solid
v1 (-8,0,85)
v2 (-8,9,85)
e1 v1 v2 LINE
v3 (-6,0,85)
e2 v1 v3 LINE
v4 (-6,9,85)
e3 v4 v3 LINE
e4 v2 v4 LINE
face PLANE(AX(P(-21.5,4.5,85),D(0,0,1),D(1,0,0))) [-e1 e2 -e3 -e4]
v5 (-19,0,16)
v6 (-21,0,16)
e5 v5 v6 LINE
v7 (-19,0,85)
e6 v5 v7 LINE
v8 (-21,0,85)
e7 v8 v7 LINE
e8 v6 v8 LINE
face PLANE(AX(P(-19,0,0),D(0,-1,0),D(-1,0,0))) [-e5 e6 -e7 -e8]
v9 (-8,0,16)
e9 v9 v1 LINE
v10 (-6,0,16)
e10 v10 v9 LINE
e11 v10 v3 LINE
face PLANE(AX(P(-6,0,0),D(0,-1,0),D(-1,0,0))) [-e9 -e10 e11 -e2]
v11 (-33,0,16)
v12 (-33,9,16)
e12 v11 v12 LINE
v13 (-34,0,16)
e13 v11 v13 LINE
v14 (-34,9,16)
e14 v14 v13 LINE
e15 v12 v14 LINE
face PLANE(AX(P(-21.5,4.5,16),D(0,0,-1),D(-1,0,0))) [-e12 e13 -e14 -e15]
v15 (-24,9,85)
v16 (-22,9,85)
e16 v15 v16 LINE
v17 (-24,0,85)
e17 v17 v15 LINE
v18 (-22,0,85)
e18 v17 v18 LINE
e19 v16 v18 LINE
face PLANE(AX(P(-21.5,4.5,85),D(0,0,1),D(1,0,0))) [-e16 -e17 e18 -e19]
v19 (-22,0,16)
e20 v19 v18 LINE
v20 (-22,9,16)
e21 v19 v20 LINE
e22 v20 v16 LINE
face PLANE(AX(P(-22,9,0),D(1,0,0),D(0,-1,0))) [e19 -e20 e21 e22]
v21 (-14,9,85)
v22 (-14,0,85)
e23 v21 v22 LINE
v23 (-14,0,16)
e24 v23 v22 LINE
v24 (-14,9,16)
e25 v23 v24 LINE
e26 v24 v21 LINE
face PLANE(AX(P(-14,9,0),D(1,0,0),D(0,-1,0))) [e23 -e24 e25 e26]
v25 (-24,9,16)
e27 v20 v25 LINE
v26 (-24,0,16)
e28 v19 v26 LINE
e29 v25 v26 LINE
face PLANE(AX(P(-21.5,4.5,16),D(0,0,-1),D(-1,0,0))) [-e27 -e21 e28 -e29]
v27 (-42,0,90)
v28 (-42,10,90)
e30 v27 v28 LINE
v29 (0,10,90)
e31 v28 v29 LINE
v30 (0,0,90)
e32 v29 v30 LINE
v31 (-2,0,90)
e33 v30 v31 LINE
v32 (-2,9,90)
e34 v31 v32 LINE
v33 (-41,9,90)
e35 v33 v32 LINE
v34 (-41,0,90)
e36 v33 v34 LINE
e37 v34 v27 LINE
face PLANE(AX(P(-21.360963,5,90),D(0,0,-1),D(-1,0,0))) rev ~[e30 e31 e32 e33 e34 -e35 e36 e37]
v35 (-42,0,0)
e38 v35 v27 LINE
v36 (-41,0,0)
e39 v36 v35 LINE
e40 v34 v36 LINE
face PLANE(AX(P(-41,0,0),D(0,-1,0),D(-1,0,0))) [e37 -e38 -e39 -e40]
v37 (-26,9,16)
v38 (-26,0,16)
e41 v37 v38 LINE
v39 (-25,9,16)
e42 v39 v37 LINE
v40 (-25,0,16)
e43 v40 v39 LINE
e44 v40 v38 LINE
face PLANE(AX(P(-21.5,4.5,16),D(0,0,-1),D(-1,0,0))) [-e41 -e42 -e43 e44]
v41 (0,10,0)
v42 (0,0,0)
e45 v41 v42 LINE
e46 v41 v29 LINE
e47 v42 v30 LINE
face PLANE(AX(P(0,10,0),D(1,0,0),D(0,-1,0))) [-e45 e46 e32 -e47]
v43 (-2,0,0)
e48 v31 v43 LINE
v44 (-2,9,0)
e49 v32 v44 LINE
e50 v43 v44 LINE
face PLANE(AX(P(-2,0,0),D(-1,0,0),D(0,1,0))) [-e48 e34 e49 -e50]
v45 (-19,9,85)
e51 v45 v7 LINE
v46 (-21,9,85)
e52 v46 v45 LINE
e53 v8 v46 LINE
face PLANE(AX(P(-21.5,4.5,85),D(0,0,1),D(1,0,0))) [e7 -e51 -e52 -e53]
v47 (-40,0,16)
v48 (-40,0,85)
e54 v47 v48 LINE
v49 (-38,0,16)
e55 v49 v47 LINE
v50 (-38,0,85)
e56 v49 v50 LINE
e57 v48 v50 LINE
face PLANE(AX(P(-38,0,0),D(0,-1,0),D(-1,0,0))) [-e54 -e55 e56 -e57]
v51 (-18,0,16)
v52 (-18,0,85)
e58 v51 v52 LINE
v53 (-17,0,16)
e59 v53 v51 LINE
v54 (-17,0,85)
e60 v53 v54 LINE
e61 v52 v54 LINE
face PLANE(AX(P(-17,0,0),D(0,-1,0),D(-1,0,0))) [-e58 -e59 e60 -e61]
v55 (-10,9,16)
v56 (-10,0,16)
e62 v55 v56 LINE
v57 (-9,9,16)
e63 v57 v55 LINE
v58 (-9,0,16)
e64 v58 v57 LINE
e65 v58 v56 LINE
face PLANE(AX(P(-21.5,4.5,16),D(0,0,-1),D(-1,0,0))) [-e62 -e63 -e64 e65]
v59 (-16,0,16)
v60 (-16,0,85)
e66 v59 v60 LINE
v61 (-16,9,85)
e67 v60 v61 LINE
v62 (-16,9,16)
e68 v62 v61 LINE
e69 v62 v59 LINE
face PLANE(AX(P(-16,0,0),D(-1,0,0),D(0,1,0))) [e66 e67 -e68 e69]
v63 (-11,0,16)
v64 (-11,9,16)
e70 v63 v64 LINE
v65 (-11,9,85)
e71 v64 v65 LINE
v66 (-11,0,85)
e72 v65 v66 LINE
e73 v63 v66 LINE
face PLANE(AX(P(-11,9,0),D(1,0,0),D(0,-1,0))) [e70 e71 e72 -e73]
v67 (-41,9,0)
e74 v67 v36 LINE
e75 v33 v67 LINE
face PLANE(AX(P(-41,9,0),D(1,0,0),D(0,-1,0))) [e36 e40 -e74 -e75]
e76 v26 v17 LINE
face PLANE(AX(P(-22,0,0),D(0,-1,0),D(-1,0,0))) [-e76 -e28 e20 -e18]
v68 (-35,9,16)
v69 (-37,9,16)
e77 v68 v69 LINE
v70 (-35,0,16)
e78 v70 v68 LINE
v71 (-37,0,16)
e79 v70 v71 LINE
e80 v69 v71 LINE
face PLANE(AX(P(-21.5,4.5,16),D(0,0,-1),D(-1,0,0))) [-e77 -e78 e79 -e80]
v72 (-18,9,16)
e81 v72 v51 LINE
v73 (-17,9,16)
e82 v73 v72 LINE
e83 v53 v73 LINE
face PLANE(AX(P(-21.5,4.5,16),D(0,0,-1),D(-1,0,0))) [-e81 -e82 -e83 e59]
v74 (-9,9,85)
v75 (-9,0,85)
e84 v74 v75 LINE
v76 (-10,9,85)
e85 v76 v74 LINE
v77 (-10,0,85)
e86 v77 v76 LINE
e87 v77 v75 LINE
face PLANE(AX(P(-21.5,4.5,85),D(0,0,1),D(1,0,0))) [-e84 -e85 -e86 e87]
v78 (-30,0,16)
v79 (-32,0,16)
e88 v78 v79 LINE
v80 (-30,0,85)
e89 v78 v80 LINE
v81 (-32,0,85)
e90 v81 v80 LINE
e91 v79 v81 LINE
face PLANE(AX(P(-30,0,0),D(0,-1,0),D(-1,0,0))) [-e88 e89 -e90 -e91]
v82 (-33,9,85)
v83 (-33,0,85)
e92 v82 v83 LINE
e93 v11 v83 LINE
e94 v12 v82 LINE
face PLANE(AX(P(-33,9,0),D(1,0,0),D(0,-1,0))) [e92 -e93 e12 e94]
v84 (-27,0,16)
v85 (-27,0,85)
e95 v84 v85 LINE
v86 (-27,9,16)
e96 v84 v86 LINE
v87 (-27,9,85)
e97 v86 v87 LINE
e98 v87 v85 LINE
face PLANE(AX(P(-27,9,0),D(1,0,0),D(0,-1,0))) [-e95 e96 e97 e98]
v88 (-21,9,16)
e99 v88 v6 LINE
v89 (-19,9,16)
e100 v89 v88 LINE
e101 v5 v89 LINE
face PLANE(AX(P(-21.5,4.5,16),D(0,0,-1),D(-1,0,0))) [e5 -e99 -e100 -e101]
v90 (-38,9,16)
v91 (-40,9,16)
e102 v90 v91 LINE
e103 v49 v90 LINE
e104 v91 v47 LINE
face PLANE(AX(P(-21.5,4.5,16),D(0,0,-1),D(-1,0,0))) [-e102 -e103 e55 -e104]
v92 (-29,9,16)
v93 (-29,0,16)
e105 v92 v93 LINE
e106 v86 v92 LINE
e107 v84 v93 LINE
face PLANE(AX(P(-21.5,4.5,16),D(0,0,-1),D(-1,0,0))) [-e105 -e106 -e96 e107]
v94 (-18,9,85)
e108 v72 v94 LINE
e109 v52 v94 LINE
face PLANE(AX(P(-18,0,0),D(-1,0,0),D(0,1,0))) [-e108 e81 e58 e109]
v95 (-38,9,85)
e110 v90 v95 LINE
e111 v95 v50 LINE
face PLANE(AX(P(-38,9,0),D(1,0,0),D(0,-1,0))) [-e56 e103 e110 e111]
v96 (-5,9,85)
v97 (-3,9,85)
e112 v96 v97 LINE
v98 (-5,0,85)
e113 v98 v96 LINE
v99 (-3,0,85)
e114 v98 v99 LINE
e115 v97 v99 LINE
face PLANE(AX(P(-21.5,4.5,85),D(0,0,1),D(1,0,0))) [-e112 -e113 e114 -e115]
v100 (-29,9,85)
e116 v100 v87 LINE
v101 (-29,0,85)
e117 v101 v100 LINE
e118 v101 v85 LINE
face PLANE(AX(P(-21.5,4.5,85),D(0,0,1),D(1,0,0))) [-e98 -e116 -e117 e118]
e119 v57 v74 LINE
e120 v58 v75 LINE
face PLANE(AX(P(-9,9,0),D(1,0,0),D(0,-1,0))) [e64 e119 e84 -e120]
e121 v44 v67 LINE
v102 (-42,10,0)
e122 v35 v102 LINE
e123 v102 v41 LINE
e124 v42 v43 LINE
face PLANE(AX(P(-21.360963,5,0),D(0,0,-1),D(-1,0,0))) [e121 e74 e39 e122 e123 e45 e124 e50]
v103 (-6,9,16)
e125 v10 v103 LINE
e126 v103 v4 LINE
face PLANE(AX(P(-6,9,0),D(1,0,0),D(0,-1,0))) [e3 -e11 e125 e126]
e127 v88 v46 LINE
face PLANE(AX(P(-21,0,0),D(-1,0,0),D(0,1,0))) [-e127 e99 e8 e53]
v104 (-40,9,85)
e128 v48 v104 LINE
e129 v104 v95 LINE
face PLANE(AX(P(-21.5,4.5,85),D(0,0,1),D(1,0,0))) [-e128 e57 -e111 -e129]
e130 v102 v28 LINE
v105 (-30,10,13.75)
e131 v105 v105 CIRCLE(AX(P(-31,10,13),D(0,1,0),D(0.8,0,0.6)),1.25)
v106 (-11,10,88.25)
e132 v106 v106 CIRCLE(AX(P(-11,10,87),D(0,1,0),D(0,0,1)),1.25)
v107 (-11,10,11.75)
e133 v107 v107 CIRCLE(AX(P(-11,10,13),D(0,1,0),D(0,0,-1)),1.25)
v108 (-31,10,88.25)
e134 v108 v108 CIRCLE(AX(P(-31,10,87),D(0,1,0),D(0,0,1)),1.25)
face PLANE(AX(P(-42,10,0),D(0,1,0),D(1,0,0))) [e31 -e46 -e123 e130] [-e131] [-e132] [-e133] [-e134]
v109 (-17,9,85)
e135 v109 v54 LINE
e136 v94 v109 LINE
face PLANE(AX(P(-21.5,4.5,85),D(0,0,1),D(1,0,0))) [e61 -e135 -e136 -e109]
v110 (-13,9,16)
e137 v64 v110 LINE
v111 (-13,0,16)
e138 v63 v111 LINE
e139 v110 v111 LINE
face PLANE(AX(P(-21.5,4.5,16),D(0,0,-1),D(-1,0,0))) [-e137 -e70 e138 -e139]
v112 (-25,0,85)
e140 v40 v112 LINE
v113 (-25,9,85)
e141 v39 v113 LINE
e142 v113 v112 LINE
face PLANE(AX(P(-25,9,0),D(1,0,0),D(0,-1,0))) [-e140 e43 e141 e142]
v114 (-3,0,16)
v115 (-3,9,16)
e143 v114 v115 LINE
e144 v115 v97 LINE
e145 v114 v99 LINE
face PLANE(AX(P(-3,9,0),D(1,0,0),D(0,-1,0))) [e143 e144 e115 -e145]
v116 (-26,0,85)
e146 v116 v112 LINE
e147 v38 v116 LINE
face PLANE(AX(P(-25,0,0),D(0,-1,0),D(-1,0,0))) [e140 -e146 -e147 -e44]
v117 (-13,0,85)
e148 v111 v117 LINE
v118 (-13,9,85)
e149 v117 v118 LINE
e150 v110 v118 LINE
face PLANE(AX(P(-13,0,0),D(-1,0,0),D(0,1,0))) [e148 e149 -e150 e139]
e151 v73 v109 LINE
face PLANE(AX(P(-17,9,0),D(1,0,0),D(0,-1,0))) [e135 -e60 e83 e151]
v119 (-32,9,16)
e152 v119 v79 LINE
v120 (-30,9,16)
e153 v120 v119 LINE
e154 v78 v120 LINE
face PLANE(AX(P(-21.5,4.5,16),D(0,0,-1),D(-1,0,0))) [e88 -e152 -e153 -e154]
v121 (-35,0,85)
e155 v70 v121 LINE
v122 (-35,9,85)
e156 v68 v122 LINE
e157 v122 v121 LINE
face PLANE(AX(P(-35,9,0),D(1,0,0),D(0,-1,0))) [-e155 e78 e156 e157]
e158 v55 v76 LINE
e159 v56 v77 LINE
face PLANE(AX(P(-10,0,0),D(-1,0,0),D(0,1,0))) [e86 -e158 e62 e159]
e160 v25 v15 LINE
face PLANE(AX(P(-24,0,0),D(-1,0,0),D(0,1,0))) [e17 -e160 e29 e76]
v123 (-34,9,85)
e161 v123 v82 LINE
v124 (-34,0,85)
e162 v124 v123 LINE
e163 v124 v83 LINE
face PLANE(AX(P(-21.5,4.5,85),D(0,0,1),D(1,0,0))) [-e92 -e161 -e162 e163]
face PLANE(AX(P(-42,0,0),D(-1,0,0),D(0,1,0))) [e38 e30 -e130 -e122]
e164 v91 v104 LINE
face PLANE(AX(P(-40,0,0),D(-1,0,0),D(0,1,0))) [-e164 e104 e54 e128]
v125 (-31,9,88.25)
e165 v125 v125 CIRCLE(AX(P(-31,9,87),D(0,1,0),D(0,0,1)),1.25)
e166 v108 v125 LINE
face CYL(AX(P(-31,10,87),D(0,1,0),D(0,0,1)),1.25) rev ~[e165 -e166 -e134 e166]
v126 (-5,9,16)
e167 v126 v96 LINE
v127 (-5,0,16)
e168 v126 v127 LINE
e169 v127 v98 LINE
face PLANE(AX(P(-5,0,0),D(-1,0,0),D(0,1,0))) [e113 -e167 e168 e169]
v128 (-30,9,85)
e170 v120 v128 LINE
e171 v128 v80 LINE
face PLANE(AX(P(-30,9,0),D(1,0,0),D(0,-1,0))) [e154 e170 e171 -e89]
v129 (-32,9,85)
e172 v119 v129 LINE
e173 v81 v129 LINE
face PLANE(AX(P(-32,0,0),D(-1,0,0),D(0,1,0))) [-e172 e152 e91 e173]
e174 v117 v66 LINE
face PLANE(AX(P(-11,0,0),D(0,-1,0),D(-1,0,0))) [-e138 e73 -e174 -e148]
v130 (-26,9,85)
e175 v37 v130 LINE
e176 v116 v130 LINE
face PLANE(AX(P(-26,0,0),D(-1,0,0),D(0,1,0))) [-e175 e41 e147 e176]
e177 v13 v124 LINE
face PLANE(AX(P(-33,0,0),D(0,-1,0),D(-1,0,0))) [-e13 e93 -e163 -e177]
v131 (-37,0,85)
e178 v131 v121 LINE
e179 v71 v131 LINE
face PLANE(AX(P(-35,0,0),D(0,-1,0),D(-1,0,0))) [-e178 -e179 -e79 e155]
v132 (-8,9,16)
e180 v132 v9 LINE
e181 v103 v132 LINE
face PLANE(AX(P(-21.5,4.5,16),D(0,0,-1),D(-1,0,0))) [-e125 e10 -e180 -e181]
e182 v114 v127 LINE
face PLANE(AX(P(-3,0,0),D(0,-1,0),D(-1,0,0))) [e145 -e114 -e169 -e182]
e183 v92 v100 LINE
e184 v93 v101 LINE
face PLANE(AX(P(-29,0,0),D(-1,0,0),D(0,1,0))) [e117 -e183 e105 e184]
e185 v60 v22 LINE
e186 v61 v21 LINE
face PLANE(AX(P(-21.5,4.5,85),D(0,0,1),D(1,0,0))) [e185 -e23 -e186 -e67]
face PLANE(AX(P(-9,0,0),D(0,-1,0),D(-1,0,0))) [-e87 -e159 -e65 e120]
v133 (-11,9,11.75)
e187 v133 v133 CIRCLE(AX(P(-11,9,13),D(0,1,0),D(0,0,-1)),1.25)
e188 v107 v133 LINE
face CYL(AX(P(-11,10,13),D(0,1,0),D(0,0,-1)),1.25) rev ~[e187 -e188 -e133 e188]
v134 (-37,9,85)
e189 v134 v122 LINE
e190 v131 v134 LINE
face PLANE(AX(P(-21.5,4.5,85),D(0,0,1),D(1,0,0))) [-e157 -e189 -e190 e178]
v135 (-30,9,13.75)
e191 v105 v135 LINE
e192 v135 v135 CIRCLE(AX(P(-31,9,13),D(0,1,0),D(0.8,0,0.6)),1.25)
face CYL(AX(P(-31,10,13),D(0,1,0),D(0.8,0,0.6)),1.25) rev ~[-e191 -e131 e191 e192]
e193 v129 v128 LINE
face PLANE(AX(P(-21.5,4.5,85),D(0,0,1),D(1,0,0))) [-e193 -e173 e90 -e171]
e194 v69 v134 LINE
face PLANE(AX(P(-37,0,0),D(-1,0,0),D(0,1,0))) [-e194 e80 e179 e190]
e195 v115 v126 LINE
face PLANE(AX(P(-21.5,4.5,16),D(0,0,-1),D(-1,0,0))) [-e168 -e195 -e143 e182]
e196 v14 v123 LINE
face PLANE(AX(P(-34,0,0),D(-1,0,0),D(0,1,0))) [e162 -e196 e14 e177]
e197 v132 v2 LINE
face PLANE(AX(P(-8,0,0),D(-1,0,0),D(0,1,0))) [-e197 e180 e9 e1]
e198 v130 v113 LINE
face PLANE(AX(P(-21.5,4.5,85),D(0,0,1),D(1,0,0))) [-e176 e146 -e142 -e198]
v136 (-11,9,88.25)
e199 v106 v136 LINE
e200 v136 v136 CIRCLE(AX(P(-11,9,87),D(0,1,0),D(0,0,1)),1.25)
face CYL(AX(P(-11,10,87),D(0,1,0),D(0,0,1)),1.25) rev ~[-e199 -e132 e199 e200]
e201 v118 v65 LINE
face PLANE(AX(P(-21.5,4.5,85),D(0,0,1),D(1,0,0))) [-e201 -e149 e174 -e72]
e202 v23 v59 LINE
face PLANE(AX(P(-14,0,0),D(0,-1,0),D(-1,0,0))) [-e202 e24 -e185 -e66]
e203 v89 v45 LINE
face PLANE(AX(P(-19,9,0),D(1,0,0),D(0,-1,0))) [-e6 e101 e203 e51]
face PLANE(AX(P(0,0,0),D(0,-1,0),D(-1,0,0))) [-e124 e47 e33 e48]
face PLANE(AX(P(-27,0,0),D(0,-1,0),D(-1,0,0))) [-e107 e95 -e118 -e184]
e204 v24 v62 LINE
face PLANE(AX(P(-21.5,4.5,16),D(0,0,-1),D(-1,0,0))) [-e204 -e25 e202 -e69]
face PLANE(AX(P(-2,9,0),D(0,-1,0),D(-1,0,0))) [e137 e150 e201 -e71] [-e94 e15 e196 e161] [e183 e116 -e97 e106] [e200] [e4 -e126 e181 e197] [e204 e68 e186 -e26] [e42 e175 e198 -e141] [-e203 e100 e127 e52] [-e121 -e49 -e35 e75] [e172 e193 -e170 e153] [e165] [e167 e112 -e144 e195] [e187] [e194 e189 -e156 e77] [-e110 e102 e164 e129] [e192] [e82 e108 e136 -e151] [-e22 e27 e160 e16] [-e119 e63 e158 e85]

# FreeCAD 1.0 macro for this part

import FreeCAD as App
import Part
import Sketcher


def add_polygon(sketch, points):
    """Adds a closed chain of lines whose ends are joined by coincident constraints."""
    first, n = sketch.GeometryCount, len(points)
    for a, b in zip(points, points[1:] + points[:1]):
        sketch.addGeometry(Part.LineSegment(App.Vector(*a, 0), App.Vector(*b, 0)), False)
    for i in range(n):
        sketch.addConstraint(Sketcher.Constraint("Coincident", first + i, 2, first + (i + 1) % n, 1))

doc = App.newDocument("Part")
body = doc.addObject("PartDesign::Body", "Body")

sketch1 = body.newObject("Sketcher::SketchObject", "Sketch")
sketch1.AttachmentSupport = (doc.getObject("XY_Plane"), [""])
sketch1.MapMode = "FlatFace"
add_polygon(sketch1, [(-2, 0), (0, 0), (0, 10), (-42, 10), (-42, 0), (-41, 0), (-41, 9), (-40, 9), (-40, 0), (-38, 0), (-38, 9), (-37, 9), (-37, 0), (-35, 0), (-35, 9), (-34, 9), (-34, 0), (-33, 0), (-33, 9), (-32, 9), (-32, 0), (-30, 0), (-30, 9), (-29, 9), (-29, 0), (-27, 0), (-27, 9), (-26, 9), (-26, 0), (-25, 0), (-25, 9), (-24, 9), (-24, 0), (-22, 0), (-22, 9), (-21, 9), (-21, 0), (-19, 0), (-19, 9), (-18, 9), (-18, 0), (-17, 0), (-17, 9), (-16, 9), (-16, 0), (-14, 0), (-14, 9), (-13, 9), (-13, 0), (-11, 0), (-11, 9), (-10, 9), (-10, 0), (-9, 0), (-9, 9), (-8, 9), (-8, 0), (-6, 0), (-6, 9), (-5, 9), (-5, 0), (-3, 0), (-3, 9), (-2, 9)])
sketch1.addConstraint([
    Sketcher.Constraint("Horizontal", 0),
    Sketcher.Constraint("Vertical", 1),
    Sketcher.Constraint("Horizontal", 2),
    Sketcher.Constraint("Vertical", 3),
    Sketcher.Constraint("Horizontal", 4),
    Sketcher.Constraint("Vertical", 5),
    Sketcher.Constraint("Horizontal", 6),
    Sketcher.Constraint("Vertical", 7),
    Sketcher.Constraint("Horizontal", 8),
    Sketcher.Constraint("Vertical", 9),
    Sketcher.Constraint("Horizontal", 10),
    Sketcher.Constraint("Vertical", 11),
    Sketcher.Constraint("Horizontal", 12),
    Sketcher.Constraint("Vertical", 13),
    Sketcher.Constraint("Horizontal", 14),
    Sketcher.Constraint("Vertical", 15),
    Sketcher.Constraint("Horizontal", 16),
    Sketcher.Constraint("Vertical", 17),
    Sketcher.Constraint("Horizontal", 18),
    Sketcher.Constraint("Vertical", 19),
    Sketcher.Constraint("Horizontal", 20),
    Sketcher.Constraint("Vertical", 21),
    Sketcher.Constraint("Horizontal", 22),
    Sketcher.Constraint("Vertical", 23),
    Sketcher.Constraint("Horizontal", 24),
    Sketcher.Constraint("Vertical", 25),
    Sketcher.Constraint("Horizontal", 26),
    Sketcher.Constraint("Vertical", 27),
    Sketcher.Constraint("Horizontal", 28),
    Sketcher.Constraint("Vertical", 29),
    Sketcher.Constraint("Horizontal", 30),
    Sketcher.Constraint("Vertical", 31),
    Sketcher.Constraint("Horizontal", 32),
    Sketcher.Constraint("Vertical", 33),
    Sketcher.Constraint("Horizontal", 34),
    Sketcher.Constraint("Vertical", 35),
    Sketcher.Constraint("Horizontal", 36),
    Sketcher.Constraint("Vertical", 37),
    Sketcher.Constraint("Horizontal", 38),
    Sketcher.Constraint("Vertical", 39),
    Sketcher.Constraint("Horizontal", 40),
    Sketcher.Constraint("Vertical", 41),
    Sketcher.Constraint("Horizontal", 42),
    Sketcher.Constraint("Vertical", 43),
    Sketcher.Constraint("Horizontal", 44),
    Sketcher.Constraint("Vertical", 45),
    Sketcher.Constraint("Horizontal", 46),
    Sketcher.Constraint("Vertical", 47),
    Sketcher.Constraint("Horizontal", 48),
    Sketcher.Constraint("Vertical", 49),
    Sketcher.Constraint("Horizontal", 50),
    Sketcher.Constraint("Vertical", 51),
    Sketcher.Constraint("Horizontal", 52),
    Sketcher.Constraint("Vertical", 53),
    Sketcher.Constraint("Horizontal", 54),
    Sketcher.Constraint("Vertical", 55),
    Sketcher.Constraint("Horizontal", 56),
    Sketcher.Constraint("Vertical", 57),
    Sketcher.Constraint("Horizontal", 58),
    Sketcher.Constraint("Vertical", 59),
    Sketcher.Constraint("Horizontal", 60),
    Sketcher.Constraint("Vertical", 61),
    Sketcher.Constraint("Horizontal", 62),
    Sketcher.Constraint("Vertical", 63),
    Sketcher.Constraint("Coincident", 0, 2, -1, 1),
    Sketcher.Constraint("PointOnObject", 3, 2, -1),
    Sketcher.Constraint("PointOnObject", 7, 2, -1),
    Sketcher.Constraint("PointOnObject", 11, 2, -1),
    Sketcher.Constraint("PointOnObject", 15, 2, -1),
    Sketcher.Constraint("PointOnObject", 19, 2, -1),
    Sketcher.Constraint("PointOnObject", 23, 2, -1),
    Sketcher.Constraint("PointOnObject", 27, 2, -1),
    Sketcher.Constraint("PointOnObject", 31, 2, -1),
    Sketcher.Constraint("PointOnObject", 35, 2, -1),
    Sketcher.Constraint("PointOnObject", 39, 2, -1),
    Sketcher.Constraint("PointOnObject", 43, 2, -1),
    Sketcher.Constraint("PointOnObject", 47, 2, -1),
    Sketcher.Constraint("PointOnObject", 51, 2, -1),
    Sketcher.Constraint("PointOnObject", 55, 2, -1),
    Sketcher.Constraint("PointOnObject", 59, 2, -1),
    Sketcher.Constraint("Horizontal", 6, 2, 9, 2),
    Sketcher.Constraint("Horizontal", 10, 2, 13, 2),
    Sketcher.Constraint("Horizontal", 14, 2, 17, 2),
    Sketcher.Constraint("Horizontal", 18, 2, 21, 2),
    Sketcher.Constraint("Horizontal", 22, 2, 25, 2),
    Sketcher.Constraint("Horizontal", 26, 2, 29, 2),
    Sketcher.Constraint("Horizontal", 30, 2, 33, 2),
    Sketcher.Constraint("Horizontal", 34, 2, 37, 2),
    Sketcher.Constraint("Horizontal", 38, 2, 41, 2),
    Sketcher.Constraint("Horizontal", 42, 2, 45, 2),
    Sketcher.Constraint("Horizontal", 46, 2, 49, 2),
    Sketcher.Constraint("Horizontal", 50, 2, 53, 2),
    Sketcher.Constraint("Horizontal", 54, 2, 57, 2),
    Sketcher.Constraint("Horizontal", 58, 2, 61, 2),
    Sketcher.Constraint("Equal", 4, 6),
    Sketcher.Constraint("Equal", 0, 8),
    Sketcher.Constraint("Equal", 6, 10),
    Sketcher.Constraint("Equal", 8, 12),
    Sketcher.Constraint("Equal", 10, 14),
    Sketcher.Constraint("Equal", 14, 16),
    Sketcher.Constraint("Equal", 16, 18),
    Sketcher.Constraint("Equal", 12, 20),
    Sketcher.Constraint("Equal", 18, 22),
    Sketcher.Constraint("Equal", 20, 24),
    Sketcher.Constraint("Equal", 22, 26),
    Sketcher.Constraint("Equal", 26, 28),
    Sketcher.Constraint("Equal", 28, 30),
    Sketcher.Constraint("Equal", 24, 32),
    Sketcher.Constraint("Equal", 30, 34),
    Sketcher.Constraint("Equal", 32, 36),
    Sketcher.Constraint("Equal", 34, 38),
    Sketcher.Constraint("Equal", 38, 40),
    Sketcher.Constraint("Equal", 40, 42),
    Sketcher.Constraint("Equal", 36, 44),
    Sketcher.Constraint("Equal", 42, 46),
    Sketcher.Constraint("Equal", 44, 48),
    Sketcher.Constraint("Equal", 46, 50),
    Sketcher.Constraint("Equal", 50, 52),
    Sketcher.Constraint("Equal", 52, 54),
    Sketcher.Constraint("Equal", 48, 56),
    Sketcher.Constraint("Equal", 54, 58),
    Sketcher.Constraint("Equal", 56, 60),
    Sketcher.Constraint("Equal", 58, 62),
    Sketcher.Constraint("DistanceX", 0, 1, 0, 2, 2.0),
    Sketcher.Constraint("DistanceX", 2, 2, 2, 1, 42.0),
    Sketcher.Constraint("DistanceY", 1, 1, 1, 2, 10.0),
    Sketcher.Constraint("DistanceY", 5, 1, 5, 2, 9.0),
])
pad1 = body.newObject("PartDesign::Pad", "Pad")
pad1.Profile = sketch1
pad1.Length = 90

sketch2 = body.newObject("Sketcher::SketchObject", "Sketch001")
sketch2.AttachmentSupport = (doc.getObject("XY_Plane"), [""])
sketch2.MapMode = "FlatFace"
sketch2.AttachmentOffset = App.Placement(App.Vector(0, 0, 90), App.Rotation())
add_polygon(sketch2, [(-41, 9), (-41, 0), (-2, 0), (-2, 9)])
sketch2.addConstraint([
    Sketcher.Constraint("Vertical", 0),
    Sketcher.Constraint("Horizontal", 1),
    Sketcher.Constraint("Vertical", 2),
    Sketcher.Constraint("Horizontal", 3),
    Sketcher.Constraint("PointOnObject", 0, 2, -1),
    Sketcher.Constraint("DistanceX", 1, 1, 1, 2, 39.0),
    Sketcher.Constraint("DistanceY", 0, 2, 0, 1, 9.0),
    Sketcher.Constraint("DistanceX", 0, 2, -1, 1, 41.0),
])
pocket1 = body.newObject("PartDesign::Pocket", "Pocket")
pocket1.Profile = sketch2
pocket1.Length = 5

sketch3 = body.newObject("Sketcher::SketchObject", "Sketch002")
sketch3.AttachmentSupport = (doc.getObject("XZ_Plane"), [""])
sketch3.MapMode = "FlatFace"
sketch3.AttachmentOffset = App.Placement(App.Vector(0, 0, -10), App.Rotation())
sketch3.addGeometry([
    Part.Circle(App.Vector(-31, 87, 0), App.Vector(0, 0, 1), 1.2),
    Part.Circle(App.Vector(-11, 87, 0), App.Vector(0, 0, 1), 1.2),
    Part.Circle(App.Vector(-11, 13, 0), App.Vector(0, 0, 1), 1.2),
    Part.Circle(App.Vector(-31, 13, 0), App.Vector(0, 0, 1), 1.2),
], False)
sketch3.addConstraint([
    Sketcher.Constraint("Equal", 0, 1),
    Sketcher.Constraint("Equal", 1, 2),
    Sketcher.Constraint("Equal", 2, 3),
    Sketcher.Constraint("Horizontal", 0, 3, 1, 3),
    Sketcher.Constraint("Horizontal", 2, 3, 3, 3),
    Sketcher.Constraint("Vertical", 1, 3, 2, 3),
    Sketcher.Constraint("Vertical", 0, 3, 3, 3),
    Sketcher.Constraint("Diameter", 0, 2.5),
    Sketcher.Constraint("DistanceX", 0, 3, -1, 1, 31.0),
    Sketcher.Constraint("DistanceY", -1, 1, 0, 3, 87.0),
    Sketcher.Constraint("DistanceX", 1, 3, -1, 1, 11.0),
    Sketcher.Constraint("DistanceY", -1, 1, 2, 3, 13.0),
])
pocket2 = body.newObject("PartDesign::Pocket", "Pocket001")
pocket2.Profile = sketch3
pocket2.Length = 5
pocket2.Reversed = True

sketch4 = body.newObject("Sketcher::SketchObject", "Sketch003")
sketch4.AttachmentSupport = (doc.getObject("XY_Plane"), [""])
sketch4.MapMode = "FlatFace"
add_polygon(sketch4, [(-2, 9), (-2, 0), (-41, 0), (-41, 9)])
sketch4.addConstraint([
    Sketcher.Constraint("Vertical", 0),
    Sketcher.Constraint("Horizontal", 1),
    Sketcher.Constraint("Vertical", 2),
    Sketcher.Constraint("Horizontal", 3),
    Sketcher.Constraint("PointOnObject", 0, 2, -1),
    Sketcher.Constraint("DistanceX", 1, 2, 1, 1, 39.0),
    Sketcher.Constraint("DistanceY", 0, 2, 0, 1, 9.0),
    Sketcher.Constraint("DistanceX", 0, 2, -1, 1, 2.0),
])
pocket3 = body.newObject("PartDesign::Pocket", "Pocket002")
pocket3.Profile = sketch4
pocket3.Length = 16
pocket3.Reversed = True

doc.recompute()
